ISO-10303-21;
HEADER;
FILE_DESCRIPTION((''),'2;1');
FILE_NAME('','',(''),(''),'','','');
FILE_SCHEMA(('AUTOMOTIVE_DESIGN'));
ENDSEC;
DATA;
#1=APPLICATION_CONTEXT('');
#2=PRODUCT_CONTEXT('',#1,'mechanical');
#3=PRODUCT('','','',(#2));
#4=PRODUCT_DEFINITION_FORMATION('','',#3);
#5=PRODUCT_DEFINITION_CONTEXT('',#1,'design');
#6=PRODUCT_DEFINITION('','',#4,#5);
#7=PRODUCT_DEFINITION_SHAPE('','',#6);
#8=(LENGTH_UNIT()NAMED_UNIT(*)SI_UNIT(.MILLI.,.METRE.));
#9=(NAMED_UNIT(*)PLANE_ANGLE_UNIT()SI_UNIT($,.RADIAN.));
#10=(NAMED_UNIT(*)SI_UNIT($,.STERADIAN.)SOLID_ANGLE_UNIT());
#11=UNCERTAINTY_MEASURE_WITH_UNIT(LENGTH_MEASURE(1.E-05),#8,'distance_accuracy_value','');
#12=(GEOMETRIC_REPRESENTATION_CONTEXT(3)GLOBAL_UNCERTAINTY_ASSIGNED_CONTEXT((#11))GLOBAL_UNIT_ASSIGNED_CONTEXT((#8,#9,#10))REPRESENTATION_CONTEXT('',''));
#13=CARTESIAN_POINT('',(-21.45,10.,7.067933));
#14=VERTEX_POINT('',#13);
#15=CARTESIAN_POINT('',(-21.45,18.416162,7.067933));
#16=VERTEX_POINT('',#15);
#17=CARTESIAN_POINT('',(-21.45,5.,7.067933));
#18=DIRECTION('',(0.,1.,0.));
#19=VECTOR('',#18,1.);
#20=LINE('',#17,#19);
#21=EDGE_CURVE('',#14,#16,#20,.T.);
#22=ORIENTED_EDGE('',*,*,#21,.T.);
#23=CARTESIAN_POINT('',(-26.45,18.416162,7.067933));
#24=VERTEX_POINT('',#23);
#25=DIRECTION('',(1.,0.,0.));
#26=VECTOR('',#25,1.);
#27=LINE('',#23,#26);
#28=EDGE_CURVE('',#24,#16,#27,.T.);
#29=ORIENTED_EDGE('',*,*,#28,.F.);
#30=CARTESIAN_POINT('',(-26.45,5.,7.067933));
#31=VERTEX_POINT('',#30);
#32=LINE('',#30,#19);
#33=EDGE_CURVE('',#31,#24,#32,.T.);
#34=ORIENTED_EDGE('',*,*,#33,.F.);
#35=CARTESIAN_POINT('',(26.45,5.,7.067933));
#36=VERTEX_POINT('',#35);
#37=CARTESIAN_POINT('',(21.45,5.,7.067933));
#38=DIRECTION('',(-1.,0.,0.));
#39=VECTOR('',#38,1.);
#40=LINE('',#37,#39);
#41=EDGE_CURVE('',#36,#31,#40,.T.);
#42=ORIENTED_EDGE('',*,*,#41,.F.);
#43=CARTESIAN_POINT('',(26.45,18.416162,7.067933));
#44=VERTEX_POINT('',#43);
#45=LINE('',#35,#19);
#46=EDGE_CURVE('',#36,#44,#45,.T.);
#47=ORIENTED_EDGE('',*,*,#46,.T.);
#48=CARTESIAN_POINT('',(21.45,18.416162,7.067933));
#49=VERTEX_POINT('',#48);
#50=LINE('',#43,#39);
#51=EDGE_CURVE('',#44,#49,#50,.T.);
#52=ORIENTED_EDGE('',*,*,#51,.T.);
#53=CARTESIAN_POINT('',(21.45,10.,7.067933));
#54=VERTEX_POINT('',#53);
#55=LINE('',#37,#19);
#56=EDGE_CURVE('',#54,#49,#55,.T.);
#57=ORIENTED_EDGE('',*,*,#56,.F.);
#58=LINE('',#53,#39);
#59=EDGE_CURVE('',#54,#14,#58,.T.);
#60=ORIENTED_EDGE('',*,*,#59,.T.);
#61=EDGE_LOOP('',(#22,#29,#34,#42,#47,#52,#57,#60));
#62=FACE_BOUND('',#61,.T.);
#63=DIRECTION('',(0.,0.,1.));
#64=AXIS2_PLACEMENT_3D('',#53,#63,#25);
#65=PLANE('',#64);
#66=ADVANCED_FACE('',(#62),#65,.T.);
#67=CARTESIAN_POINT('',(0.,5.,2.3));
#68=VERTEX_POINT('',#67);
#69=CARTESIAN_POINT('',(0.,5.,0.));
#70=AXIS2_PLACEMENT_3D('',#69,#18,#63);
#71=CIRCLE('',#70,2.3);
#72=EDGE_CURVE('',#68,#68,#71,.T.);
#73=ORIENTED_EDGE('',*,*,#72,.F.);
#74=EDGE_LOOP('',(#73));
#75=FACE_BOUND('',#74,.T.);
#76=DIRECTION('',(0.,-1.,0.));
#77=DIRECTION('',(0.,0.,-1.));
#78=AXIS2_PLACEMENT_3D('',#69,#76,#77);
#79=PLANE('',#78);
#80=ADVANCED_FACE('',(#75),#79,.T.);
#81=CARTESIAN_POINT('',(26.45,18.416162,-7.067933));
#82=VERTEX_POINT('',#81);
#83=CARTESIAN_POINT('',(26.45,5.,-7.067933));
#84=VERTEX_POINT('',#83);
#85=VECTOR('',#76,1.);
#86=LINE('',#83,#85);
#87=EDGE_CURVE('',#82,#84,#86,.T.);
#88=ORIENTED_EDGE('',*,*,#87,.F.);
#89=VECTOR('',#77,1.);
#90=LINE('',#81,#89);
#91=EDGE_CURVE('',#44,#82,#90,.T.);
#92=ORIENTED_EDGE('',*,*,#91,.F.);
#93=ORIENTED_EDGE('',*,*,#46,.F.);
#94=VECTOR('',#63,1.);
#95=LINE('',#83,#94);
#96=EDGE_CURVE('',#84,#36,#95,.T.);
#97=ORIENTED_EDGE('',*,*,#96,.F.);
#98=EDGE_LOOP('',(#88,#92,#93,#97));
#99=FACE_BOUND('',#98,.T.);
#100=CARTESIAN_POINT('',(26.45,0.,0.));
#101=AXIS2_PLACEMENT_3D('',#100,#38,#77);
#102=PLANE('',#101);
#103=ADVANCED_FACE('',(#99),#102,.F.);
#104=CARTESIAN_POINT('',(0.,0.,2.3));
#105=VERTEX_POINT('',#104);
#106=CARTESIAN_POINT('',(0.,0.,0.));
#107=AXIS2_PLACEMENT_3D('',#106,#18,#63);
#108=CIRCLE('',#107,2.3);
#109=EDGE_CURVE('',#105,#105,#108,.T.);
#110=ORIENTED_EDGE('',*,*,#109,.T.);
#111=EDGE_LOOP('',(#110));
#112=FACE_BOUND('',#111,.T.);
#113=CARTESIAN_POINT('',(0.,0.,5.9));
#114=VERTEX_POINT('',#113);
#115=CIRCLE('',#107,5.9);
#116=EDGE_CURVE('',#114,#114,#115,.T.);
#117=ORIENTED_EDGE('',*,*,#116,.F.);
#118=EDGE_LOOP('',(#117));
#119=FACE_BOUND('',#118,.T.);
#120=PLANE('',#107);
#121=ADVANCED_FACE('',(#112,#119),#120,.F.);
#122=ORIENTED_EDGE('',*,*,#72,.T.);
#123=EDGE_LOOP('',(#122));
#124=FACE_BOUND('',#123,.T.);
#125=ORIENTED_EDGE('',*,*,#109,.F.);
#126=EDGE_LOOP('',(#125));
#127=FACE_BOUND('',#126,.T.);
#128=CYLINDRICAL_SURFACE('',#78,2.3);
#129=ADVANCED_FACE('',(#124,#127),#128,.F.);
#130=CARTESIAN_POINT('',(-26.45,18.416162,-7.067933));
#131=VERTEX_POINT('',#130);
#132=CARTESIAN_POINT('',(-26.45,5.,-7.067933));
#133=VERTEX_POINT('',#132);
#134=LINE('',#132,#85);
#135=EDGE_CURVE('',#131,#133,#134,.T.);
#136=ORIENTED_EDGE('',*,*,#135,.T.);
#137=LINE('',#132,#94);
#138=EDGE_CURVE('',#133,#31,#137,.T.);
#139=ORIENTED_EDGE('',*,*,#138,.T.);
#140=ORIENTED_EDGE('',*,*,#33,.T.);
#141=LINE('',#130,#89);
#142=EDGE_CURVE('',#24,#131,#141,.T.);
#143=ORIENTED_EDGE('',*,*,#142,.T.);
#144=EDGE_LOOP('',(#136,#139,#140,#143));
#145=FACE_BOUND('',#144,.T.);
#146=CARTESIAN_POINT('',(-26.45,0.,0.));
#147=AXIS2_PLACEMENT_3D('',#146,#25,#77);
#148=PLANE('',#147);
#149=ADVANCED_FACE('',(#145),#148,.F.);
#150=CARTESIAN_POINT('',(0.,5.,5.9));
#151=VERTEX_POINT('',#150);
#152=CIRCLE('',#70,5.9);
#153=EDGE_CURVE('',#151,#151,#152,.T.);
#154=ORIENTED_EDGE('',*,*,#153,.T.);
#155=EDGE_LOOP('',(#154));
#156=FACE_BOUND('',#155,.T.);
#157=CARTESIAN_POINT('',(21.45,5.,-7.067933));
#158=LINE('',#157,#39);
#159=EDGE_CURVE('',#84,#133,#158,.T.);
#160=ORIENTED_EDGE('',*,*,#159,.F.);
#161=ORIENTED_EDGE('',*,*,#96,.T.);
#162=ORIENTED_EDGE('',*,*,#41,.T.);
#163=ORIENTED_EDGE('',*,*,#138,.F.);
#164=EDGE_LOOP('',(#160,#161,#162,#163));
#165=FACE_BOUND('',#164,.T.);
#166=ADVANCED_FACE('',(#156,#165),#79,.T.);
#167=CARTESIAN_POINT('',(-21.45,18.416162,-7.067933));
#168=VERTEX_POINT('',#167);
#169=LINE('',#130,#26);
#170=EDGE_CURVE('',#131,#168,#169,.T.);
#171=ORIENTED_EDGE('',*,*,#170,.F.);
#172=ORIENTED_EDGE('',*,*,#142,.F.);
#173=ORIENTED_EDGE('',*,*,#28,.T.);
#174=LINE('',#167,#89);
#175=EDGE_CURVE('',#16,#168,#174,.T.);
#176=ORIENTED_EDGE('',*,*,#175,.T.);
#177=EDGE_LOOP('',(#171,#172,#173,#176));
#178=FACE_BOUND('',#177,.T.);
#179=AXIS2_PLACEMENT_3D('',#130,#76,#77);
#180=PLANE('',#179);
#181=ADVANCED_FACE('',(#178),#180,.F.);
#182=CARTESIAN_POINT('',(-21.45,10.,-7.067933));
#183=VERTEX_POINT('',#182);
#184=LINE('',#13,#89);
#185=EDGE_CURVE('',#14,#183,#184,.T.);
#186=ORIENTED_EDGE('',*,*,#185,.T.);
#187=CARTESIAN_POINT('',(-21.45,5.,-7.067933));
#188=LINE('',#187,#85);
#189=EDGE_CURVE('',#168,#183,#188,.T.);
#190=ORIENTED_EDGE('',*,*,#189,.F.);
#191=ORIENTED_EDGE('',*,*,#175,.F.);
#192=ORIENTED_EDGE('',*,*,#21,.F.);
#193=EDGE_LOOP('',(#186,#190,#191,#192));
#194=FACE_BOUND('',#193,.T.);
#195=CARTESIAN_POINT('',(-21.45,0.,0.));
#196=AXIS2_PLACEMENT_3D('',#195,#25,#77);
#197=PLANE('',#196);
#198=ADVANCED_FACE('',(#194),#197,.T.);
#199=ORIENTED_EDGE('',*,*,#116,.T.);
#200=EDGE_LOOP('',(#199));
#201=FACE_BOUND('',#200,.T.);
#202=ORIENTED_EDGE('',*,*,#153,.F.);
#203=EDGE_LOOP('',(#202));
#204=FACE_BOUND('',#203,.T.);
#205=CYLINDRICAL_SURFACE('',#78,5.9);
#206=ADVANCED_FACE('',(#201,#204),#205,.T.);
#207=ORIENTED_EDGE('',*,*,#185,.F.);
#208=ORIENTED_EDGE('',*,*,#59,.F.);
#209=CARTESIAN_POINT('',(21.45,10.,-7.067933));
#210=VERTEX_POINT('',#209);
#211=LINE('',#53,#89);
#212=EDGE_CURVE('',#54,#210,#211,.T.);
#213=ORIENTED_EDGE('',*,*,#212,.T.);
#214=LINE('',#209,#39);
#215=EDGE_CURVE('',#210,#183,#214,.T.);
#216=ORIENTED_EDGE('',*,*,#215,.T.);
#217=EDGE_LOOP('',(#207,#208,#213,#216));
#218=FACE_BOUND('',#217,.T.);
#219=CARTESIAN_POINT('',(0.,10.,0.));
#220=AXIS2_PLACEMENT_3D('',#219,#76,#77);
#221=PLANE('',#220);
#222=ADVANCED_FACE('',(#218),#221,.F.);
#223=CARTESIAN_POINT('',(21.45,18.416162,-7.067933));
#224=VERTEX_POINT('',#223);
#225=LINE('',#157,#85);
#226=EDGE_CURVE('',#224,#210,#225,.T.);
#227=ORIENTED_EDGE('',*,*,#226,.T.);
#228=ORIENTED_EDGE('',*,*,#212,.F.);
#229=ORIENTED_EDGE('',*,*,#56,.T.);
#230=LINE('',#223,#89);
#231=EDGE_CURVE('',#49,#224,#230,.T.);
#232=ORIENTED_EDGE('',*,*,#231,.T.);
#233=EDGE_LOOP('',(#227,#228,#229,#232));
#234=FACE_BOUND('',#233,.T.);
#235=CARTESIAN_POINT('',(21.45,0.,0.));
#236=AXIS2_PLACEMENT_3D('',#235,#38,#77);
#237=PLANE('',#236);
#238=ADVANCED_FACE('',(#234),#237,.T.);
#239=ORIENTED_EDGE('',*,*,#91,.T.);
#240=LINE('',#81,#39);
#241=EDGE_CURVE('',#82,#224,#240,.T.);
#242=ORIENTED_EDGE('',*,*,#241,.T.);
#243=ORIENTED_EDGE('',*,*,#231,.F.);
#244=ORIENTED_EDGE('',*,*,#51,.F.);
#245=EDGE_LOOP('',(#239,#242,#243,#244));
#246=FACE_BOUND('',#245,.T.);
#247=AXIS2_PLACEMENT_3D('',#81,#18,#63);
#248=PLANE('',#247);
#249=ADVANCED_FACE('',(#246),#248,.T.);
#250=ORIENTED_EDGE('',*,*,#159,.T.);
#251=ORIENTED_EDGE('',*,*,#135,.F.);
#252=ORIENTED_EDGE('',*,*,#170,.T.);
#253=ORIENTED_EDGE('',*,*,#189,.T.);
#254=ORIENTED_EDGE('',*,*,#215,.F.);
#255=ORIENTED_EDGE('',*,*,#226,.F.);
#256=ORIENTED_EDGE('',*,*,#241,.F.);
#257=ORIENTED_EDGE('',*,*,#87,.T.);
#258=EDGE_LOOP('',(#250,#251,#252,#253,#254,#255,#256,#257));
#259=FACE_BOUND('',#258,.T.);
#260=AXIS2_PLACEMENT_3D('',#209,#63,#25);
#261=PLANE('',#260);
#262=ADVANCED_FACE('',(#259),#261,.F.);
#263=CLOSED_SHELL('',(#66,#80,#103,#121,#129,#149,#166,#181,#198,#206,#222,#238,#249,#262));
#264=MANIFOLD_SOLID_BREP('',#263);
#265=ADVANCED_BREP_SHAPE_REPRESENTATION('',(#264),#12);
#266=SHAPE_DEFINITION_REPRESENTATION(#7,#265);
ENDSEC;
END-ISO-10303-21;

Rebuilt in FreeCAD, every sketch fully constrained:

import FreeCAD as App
import Part
import Sketcher
from FreeCAD import Vector
Q = App.Units.Quantity

doc = App.newDocument("Part")
body = doc.addObject("PartDesign::Body", "Body")

sketch1 = body.newObject("Sketcher::SketchObject", "Sketch")
sketch1.AttachmentSupport = (doc.getObject("XZ_Plane"), [""])
sketch1.MapMode = "FlatFace"
sketch1.addGeometry([
    Part.Circle(Vector(0, 0, 0), Vector(0, 0, 1), 5.9),
    Part.Circle(Vector(0, 0, 0), Vector(0, 0, 1), 2.3),
], False)
sketch1.addConstraint([
    Sketcher.Constraint("Coincident", 0, 3, -1, 1),
    Sketcher.Constraint("Coincident", 1, 3, -1, 1),
    Sketcher.Constraint("Diameter", 0, Q("11.8 mm")),
    Sketcher.Constraint("Diameter", 1, Q("4.6 mm")),
])
pad1 = body.newObject("PartDesign::Pad", "Pad")
pad1.Profile = sketch1
pad1.Length = 5
pad1.Reversed = True

sketch2 = body.newObject("Sketcher::SketchObject", "Sketch001")
sketch2.AttachmentSupport = (doc.getObject("XZ_Plane"), [""])
sketch2.MapMode = "FlatFace"
sketch2.AttachmentOffset = App.Placement(Vector(0, 0, -5), App.Rotation())
sketch2.addGeometry([
    Part.LineSegment(Vector(-21, -7, 0), Vector(-21, 7, 0)),
    Part.LineSegment(Vector(-21, 7, 0), Vector(21, 7, 0)),
    Part.LineSegment(Vector(21, 7, 0), Vector(21, -7, 0)),
    Part.LineSegment(Vector(21, -7, 0), Vector(-21, -7, 0)),
], False)
sketch2.addConstraint([
    Sketcher.Constraint("Coincident", 0, 2, 1, 1),
    Sketcher.Constraint("Coincident", 1, 2, 2, 1),
    Sketcher.Constraint("Coincident", 2, 2, 3, 1),
    Sketcher.Constraint("Coincident", 3, 2, 0, 1),
    Sketcher.Constraint("Vertical", 0),
    Sketcher.Constraint("Horizontal", 1),
    Sketcher.Constraint("Vertical", 2),
    Sketcher.Constraint("Horizontal", 3),
    Sketcher.Constraint("Symmetric", 0, 2, 2, 2, -1, 1),
    Sketcher.Constraint("DistanceX", 1, 1, 1, 2, Q("42.9 mm")),
    Sketcher.Constraint("DistanceY", 0, 1, 0, 2, Q("14.135867 mm")),
])
pad2 = body.newObject("PartDesign::Pad", "Pad001")
pad2.Profile = sketch2
pad2.Length = 5
pad2.Reversed = True

sketch3 = body.newObject("Sketcher::SketchObject", "Sketch002")
sketch3.AttachmentSupport = (doc.getObject("YZ_Plane"), [""])
sketch3.MapMode = "FlatFace"
sketch3.AttachmentOffset = App.Placement(Vector(0, 0, -21.45), App.Rotation())
sketch3.addGeometry([
    Part.LineSegment(Vector(18, -7, 0), Vector(5, -7, 0)),
    Part.LineSegment(Vector(5, -7, 0), Vector(5, 7, 0)),
    Part.LineSegment(Vector(5, 7, 0), Vector(18, 7, 0)),
    Part.LineSegment(Vector(18, 7, 0), Vector(18, -7, 0)),
], False)
sketch3.addConstraint([
    Sketcher.Constraint("Coincident", 0, 2, 1, 1),
    Sketcher.Constraint("Coincident", 1, 2, 2, 1),
    Sketcher.Constraint("Coincident", 2, 2, 3, 1),
    Sketcher.Constraint("Coincident", 3, 2, 0, 1),
    Sketcher.Constraint("Horizontal", 0),
    Sketcher.Constraint("Vertical", 1),
    Sketcher.Constraint("Horizontal", 2),
    Sketcher.Constraint("Vertical", 3),
    Sketcher.Constraint("DistanceX", -1, 1, 0, 2, Q("5 mm")),
    Sketcher.Constraint("DistanceX", 0, 2, 0, 1, Q("13.416162 mm")),
    Sketcher.Constraint("DistanceY", 1, 1, 1, 2, Q("14.135867 mm")),
    Sketcher.Constraint("DistanceY", 0, 2, -1, 1, Q("7.067933 mm")),
])
pad3 = body.newObject("PartDesign::Pad", "Pad002")
pad3.Profile = sketch3
pad3.Length = 5
pad3.Reversed = True
doc.recompute()

mirrored = body.newObject("PartDesign::Mirrored", "Mirrored")
mirrored.Originals = [pad3]
mirrored.MirrorPlane = (doc.getObject("YZ_Plane"), [""])
body.Tip = mirrored

doc.recompute()
